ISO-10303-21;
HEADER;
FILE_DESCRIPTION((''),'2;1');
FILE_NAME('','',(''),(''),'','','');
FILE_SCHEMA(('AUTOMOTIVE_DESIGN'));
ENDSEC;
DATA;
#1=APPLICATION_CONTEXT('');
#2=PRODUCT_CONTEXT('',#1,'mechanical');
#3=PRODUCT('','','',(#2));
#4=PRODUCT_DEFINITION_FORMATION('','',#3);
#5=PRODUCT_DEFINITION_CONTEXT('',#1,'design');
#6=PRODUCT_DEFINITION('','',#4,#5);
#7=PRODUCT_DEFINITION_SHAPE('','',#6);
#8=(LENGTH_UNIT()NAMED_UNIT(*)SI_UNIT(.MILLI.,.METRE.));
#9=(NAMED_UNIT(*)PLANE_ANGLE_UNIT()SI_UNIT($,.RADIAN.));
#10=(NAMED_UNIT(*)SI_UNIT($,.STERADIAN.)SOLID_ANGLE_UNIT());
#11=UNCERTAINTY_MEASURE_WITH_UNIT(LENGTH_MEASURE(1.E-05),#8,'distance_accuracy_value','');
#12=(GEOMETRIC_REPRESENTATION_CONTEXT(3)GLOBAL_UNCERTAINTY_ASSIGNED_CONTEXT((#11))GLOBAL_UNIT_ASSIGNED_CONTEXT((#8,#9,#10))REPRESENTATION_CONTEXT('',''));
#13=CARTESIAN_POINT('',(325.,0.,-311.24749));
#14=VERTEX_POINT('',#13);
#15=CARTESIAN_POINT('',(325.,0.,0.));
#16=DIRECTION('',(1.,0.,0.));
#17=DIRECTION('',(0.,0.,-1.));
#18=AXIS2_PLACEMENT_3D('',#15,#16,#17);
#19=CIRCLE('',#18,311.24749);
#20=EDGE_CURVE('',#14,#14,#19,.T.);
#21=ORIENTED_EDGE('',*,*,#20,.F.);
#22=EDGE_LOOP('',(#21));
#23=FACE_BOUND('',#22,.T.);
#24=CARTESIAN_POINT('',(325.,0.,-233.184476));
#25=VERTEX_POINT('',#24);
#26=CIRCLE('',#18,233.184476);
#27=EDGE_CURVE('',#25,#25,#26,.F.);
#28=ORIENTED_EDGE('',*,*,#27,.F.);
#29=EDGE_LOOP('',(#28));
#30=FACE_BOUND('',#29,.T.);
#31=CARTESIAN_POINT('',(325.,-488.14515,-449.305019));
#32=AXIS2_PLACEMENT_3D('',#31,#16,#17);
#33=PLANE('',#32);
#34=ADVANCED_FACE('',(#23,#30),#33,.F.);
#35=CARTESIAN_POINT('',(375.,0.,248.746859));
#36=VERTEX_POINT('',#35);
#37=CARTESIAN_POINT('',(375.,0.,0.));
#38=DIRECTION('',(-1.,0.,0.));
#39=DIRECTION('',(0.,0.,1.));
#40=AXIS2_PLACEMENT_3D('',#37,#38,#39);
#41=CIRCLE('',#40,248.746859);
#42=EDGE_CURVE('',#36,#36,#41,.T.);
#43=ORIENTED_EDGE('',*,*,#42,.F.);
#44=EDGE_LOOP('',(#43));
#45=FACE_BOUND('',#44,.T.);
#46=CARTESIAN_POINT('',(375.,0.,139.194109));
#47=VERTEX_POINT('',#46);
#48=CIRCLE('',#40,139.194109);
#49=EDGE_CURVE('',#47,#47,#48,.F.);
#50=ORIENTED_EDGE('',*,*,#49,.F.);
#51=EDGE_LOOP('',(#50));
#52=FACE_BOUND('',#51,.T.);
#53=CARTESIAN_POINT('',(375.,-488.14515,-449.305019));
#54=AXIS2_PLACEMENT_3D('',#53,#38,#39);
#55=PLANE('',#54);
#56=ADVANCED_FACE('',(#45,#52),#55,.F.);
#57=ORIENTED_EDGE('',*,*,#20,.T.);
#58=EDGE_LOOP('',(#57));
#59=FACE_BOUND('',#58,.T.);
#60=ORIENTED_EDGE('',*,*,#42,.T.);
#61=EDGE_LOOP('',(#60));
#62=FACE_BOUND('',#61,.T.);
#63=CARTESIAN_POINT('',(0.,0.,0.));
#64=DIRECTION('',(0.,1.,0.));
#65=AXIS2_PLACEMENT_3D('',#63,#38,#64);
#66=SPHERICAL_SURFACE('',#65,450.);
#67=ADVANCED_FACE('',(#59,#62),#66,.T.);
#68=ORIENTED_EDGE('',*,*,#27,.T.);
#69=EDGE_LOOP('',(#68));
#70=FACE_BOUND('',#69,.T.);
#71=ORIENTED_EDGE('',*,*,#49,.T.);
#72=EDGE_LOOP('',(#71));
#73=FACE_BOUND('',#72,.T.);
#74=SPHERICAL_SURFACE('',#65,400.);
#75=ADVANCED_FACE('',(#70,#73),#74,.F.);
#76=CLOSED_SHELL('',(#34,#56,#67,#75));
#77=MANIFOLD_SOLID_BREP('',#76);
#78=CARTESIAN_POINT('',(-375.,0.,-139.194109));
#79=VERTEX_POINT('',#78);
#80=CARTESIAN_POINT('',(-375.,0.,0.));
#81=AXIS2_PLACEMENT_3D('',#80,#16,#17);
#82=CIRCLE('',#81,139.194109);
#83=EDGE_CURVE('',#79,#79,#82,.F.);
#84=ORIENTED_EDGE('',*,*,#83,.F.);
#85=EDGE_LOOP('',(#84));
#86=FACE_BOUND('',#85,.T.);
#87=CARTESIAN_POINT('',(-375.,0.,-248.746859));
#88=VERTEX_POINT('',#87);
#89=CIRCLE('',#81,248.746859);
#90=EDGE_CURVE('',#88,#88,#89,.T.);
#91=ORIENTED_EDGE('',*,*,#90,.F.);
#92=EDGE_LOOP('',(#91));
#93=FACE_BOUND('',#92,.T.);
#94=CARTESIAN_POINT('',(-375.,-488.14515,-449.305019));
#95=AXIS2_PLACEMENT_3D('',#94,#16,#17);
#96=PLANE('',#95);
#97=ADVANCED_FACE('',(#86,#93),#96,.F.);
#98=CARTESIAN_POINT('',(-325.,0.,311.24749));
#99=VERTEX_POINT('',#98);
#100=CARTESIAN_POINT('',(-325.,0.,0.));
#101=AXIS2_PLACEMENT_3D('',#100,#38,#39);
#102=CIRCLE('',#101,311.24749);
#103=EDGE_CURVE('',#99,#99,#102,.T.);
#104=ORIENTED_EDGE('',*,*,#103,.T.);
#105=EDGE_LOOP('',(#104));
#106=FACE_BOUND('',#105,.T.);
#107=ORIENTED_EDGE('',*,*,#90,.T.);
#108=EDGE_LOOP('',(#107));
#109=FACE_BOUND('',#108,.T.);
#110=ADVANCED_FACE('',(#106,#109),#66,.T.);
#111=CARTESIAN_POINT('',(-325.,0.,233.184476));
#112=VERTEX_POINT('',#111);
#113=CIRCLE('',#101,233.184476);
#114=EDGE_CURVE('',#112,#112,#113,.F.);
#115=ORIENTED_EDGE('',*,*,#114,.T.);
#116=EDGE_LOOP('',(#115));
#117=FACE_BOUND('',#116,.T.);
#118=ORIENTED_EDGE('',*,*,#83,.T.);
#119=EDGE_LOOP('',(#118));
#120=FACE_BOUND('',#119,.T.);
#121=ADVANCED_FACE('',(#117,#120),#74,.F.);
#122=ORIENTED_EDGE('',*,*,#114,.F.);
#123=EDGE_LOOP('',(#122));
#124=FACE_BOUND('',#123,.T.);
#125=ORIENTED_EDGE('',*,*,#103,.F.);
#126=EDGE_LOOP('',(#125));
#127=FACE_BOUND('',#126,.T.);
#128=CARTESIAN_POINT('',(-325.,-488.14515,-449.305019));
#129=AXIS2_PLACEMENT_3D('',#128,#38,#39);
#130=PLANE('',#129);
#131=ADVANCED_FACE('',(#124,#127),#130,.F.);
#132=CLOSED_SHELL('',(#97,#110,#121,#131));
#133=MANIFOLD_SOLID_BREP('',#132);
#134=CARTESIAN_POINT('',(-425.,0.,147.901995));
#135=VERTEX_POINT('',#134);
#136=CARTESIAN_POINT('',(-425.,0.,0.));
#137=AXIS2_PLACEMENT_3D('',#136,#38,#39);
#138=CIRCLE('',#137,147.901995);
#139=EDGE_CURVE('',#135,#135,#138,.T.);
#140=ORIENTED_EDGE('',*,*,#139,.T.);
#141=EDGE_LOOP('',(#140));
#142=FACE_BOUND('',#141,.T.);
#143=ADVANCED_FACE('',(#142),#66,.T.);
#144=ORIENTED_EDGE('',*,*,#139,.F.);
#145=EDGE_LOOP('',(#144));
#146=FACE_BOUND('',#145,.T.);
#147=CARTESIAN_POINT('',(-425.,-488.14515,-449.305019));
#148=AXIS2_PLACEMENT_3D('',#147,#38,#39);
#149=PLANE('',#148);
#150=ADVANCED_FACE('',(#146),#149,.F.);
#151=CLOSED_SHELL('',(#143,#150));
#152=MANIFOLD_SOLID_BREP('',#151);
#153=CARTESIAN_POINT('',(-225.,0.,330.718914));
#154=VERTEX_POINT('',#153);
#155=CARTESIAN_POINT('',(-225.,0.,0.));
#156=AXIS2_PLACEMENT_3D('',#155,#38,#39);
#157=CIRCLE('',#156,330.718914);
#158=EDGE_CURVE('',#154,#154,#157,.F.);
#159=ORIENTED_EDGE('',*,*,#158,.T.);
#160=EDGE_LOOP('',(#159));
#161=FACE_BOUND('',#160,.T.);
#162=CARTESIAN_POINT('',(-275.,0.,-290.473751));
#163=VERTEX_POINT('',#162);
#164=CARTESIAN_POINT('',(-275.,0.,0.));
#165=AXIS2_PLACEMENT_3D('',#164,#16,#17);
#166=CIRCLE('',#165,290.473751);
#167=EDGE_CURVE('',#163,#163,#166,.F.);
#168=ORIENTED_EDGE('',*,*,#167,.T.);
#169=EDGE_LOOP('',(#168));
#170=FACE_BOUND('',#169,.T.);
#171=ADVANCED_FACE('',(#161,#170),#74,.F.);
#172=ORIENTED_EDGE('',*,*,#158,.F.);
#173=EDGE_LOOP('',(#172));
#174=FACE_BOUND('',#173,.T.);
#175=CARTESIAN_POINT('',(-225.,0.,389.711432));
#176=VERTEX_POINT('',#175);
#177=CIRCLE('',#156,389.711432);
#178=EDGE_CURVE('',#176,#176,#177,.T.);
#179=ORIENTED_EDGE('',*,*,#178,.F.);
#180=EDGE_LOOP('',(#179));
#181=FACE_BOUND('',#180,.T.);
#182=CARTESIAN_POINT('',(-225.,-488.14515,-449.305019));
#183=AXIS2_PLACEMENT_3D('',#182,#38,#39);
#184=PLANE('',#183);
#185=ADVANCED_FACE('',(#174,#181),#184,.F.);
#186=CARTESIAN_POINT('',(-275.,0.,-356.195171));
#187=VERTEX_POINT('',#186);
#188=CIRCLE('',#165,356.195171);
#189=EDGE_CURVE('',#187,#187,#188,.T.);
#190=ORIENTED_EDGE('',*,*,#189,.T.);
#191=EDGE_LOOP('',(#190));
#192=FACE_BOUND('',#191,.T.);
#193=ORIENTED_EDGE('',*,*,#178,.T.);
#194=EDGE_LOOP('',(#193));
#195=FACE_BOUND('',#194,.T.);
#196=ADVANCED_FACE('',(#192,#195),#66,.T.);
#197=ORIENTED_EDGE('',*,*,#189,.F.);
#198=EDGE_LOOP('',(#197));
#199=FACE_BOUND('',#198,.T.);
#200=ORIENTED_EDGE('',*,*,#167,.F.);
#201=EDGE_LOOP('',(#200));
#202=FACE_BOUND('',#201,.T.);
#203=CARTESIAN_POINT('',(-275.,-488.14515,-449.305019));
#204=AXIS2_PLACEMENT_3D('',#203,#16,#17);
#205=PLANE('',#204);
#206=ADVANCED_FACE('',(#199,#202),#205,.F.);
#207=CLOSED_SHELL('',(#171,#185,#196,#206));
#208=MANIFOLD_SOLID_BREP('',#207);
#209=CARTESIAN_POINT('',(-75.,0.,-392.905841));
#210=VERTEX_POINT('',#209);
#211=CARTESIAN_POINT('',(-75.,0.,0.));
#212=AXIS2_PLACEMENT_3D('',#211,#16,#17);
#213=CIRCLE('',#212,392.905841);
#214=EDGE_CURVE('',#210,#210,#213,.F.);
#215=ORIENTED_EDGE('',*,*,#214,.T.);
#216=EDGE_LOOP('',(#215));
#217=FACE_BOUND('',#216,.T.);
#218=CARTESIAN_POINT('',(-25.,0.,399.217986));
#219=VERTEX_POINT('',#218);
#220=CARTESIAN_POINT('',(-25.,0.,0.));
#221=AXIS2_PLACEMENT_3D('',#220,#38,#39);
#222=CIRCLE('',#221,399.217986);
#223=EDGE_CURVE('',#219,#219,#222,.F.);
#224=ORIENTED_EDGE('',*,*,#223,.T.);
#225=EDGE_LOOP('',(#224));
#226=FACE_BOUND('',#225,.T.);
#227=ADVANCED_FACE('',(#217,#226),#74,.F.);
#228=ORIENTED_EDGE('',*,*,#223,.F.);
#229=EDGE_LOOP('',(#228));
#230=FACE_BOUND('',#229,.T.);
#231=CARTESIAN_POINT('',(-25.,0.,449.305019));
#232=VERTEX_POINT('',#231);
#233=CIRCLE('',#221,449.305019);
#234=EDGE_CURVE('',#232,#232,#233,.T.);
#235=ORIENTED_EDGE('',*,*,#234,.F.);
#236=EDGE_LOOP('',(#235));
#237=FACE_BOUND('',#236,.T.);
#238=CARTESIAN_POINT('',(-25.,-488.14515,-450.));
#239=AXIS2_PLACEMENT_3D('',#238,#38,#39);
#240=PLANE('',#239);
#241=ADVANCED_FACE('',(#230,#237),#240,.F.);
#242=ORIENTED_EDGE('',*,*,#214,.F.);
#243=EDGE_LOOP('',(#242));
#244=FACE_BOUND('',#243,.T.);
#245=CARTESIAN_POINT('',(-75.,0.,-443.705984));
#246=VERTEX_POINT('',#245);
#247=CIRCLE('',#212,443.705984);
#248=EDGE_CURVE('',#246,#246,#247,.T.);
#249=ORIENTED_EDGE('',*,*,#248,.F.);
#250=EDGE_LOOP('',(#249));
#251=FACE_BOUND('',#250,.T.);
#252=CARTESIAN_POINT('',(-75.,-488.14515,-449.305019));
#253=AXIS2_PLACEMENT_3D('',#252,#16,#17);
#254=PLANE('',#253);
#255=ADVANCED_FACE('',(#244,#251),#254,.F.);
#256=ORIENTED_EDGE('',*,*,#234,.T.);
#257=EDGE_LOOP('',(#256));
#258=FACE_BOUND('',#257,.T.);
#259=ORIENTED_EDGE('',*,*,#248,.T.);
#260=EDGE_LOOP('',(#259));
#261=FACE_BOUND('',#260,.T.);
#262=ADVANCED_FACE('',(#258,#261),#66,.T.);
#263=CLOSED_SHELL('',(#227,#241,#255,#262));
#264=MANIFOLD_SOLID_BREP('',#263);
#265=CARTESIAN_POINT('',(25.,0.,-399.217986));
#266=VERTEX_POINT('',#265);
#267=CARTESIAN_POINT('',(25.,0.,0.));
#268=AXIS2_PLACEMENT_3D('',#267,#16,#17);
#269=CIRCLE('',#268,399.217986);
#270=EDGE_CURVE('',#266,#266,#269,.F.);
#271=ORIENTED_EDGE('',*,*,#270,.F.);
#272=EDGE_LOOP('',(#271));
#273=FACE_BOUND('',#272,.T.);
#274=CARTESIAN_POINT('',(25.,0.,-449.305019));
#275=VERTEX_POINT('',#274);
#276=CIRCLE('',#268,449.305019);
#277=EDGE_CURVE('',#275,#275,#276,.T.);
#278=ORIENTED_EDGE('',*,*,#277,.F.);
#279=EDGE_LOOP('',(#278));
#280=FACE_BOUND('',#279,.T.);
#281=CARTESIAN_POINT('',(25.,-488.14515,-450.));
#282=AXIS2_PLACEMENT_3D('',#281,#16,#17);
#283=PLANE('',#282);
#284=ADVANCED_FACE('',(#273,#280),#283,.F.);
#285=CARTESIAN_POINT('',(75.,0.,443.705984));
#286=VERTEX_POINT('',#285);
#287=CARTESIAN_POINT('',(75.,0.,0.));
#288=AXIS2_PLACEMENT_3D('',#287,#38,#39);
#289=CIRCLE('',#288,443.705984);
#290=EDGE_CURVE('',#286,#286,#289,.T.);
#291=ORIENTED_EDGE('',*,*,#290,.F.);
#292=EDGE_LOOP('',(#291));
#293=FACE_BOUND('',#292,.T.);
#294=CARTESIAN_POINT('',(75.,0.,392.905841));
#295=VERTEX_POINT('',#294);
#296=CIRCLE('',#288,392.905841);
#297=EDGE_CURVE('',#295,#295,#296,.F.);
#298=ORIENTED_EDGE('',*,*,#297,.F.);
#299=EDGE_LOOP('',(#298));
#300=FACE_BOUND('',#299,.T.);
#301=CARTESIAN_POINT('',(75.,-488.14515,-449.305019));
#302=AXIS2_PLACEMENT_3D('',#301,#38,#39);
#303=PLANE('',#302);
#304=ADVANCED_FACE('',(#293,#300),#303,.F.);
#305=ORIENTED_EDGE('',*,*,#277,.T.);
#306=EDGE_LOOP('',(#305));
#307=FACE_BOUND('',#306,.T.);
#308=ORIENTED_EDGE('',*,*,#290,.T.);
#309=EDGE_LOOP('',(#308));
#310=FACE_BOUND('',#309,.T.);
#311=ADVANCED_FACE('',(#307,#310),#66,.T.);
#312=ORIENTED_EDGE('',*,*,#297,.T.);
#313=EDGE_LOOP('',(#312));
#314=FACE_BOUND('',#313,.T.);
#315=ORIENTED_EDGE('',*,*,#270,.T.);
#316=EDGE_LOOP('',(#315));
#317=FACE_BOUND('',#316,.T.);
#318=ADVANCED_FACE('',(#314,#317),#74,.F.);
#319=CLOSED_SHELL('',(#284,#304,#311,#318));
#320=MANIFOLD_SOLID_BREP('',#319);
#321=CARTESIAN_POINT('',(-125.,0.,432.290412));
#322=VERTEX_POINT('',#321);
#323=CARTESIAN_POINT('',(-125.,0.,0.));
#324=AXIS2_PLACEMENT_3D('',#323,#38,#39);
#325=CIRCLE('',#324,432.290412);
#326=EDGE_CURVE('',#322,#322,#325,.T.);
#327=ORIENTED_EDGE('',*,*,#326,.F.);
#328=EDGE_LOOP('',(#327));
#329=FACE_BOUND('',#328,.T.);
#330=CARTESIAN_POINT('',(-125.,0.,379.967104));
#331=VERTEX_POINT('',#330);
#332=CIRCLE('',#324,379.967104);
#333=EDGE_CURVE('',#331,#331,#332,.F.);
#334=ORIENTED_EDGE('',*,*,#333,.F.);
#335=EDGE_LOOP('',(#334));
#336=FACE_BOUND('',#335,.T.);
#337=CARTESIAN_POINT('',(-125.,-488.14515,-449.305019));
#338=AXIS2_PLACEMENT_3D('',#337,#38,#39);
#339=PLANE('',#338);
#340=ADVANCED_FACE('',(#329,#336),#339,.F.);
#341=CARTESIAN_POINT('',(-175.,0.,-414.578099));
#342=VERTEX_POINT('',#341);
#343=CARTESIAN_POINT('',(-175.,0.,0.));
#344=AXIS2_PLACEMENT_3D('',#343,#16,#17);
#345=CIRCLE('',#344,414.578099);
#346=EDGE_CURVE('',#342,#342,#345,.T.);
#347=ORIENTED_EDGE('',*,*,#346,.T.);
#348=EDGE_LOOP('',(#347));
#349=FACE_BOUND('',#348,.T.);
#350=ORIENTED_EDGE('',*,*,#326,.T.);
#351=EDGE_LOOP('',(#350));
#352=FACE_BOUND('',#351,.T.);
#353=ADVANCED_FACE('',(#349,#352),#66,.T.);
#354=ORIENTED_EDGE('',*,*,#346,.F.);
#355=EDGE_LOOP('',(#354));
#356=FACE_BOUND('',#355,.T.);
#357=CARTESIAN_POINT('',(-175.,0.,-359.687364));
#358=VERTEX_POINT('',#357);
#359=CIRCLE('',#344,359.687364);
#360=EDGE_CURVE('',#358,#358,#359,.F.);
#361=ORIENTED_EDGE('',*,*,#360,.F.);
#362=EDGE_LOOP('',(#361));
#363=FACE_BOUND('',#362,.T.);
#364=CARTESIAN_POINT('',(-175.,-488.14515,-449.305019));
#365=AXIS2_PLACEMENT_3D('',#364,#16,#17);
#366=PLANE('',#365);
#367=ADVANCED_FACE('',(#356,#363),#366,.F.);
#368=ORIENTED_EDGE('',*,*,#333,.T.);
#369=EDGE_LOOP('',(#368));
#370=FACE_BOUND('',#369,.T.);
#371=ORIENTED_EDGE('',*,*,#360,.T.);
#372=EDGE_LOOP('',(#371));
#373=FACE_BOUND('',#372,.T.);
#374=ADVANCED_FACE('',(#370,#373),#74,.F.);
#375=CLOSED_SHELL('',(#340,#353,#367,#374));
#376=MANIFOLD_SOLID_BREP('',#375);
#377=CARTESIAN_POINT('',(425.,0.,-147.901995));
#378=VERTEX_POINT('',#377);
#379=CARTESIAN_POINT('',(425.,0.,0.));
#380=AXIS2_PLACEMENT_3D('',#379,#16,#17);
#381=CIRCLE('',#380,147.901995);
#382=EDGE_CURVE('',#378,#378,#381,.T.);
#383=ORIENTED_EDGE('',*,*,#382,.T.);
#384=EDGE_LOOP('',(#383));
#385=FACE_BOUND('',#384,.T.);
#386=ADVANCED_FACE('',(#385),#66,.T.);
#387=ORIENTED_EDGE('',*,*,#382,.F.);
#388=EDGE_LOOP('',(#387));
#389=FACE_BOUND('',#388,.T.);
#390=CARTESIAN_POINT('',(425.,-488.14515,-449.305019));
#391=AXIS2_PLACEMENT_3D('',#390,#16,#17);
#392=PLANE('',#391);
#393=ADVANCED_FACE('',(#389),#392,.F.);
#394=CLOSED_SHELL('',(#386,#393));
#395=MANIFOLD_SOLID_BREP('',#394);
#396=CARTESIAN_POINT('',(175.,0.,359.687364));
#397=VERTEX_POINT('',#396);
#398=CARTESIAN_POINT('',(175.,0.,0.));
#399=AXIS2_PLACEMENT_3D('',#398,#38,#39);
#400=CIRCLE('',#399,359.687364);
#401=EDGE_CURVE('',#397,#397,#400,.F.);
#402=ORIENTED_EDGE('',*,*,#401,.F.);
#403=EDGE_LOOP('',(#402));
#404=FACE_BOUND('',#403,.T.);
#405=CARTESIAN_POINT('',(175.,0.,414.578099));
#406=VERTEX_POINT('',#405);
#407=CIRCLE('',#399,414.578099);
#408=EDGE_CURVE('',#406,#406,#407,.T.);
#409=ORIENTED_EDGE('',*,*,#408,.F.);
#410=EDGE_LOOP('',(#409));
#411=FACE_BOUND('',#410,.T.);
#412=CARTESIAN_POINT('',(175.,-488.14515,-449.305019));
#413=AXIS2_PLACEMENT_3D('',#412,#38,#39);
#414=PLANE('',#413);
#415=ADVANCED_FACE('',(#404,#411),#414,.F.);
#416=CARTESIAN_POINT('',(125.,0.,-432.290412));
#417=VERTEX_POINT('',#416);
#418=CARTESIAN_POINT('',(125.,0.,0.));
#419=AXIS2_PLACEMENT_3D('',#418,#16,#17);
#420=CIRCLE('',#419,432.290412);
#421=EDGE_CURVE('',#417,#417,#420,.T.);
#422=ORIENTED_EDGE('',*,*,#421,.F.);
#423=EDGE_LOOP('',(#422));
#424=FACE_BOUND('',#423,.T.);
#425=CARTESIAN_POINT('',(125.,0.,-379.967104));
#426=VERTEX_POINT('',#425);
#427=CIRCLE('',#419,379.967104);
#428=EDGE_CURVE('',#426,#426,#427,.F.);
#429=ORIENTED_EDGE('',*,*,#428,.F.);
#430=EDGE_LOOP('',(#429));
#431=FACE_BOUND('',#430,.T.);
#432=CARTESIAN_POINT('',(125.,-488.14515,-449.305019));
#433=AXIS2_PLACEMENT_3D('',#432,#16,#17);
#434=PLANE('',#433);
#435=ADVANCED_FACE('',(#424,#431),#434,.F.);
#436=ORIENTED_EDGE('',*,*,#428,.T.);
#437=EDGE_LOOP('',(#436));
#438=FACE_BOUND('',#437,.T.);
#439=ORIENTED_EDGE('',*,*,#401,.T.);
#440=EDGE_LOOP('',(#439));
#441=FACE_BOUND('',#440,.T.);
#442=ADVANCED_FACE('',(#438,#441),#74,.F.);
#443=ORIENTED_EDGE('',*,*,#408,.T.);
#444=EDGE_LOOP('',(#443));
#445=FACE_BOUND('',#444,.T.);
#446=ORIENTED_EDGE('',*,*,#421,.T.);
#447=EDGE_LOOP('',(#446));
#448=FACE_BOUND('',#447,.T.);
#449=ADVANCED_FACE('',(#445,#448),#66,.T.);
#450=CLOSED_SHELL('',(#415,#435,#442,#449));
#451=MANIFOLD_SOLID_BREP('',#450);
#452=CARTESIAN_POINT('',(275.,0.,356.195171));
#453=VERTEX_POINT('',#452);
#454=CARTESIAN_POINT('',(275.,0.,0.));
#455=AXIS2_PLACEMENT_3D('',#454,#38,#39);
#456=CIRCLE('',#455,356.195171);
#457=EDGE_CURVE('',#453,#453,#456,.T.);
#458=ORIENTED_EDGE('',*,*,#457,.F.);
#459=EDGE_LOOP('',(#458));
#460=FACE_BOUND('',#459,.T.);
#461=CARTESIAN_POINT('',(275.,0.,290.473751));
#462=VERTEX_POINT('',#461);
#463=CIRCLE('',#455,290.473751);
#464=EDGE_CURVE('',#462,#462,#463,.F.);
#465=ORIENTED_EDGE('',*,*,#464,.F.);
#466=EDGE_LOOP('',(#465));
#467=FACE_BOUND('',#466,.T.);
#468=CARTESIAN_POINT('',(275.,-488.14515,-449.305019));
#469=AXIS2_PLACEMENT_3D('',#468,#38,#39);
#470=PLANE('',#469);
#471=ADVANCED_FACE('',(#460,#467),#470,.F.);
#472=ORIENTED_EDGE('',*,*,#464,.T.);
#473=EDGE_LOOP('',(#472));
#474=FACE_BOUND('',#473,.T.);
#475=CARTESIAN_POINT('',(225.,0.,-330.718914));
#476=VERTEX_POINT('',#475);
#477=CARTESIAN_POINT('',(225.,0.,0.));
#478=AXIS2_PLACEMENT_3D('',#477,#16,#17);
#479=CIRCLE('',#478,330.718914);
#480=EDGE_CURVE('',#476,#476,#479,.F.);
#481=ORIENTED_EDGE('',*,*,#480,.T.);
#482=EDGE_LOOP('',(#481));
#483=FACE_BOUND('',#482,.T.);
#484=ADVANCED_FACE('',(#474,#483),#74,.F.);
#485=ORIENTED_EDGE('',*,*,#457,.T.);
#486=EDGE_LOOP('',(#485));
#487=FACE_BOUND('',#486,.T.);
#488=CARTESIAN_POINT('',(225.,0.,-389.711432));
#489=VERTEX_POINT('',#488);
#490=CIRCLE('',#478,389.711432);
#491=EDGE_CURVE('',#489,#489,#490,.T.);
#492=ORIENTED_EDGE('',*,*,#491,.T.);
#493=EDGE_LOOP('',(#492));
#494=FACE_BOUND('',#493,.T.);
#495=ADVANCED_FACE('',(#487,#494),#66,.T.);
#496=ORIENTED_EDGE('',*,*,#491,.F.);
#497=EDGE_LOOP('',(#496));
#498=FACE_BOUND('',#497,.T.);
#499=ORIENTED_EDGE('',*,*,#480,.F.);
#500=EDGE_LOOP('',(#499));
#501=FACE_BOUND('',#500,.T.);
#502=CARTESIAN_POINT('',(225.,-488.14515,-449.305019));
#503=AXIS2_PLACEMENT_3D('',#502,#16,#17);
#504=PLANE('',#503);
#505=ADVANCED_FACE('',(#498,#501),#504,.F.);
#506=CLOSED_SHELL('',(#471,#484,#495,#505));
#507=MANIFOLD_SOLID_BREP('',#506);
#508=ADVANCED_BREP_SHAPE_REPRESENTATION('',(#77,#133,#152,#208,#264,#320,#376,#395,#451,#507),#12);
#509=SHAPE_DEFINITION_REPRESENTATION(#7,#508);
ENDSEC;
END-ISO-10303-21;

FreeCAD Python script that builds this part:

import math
import FreeCAD as App
import Part
import Sketcher

V = App.Vector
Q = App.Units.Quantity

doc = App.newDocument("Part")
body = doc.addObject("PartDesign::Body", "Body")
body.AllowCompound = True

# Sketch on XY plane
sketch1 = doc.addObject("Sketcher::SketchObject", "Sketch")
body.addObject(sketch1)
sketch1.AttachmentSupport = (doc.XY_Plane, [""])
sketch1.MapMode = "FlatFace"
sketch1.addGeometry(Part.LineSegment(V(-450, 0, 0), V(-400, 0, 0)), False)
sketch1.addGeometry(Part.ArcOfCircle(Part.Circle(V(0, 0, 0), V(0, 0, 1), 400), math.radians(0), math.radians(180)), False)
sketch1.addGeometry(Part.LineSegment(V(400, 0, 0), V(450, 0, 0)), False)
sketch1.addGeometry(Part.ArcOfCircle(Part.Circle(V(0, 0, 0), V(0, 0, 1), 450), math.radians(0), math.radians(180)), False)
sketch1.addConstraint(Sketcher.Constraint("Coincident", 0, 2, 1, 2))
sketch1.addConstraint(Sketcher.Constraint("Coincident", 1, 1, 2, 1))
sketch1.addConstraint(Sketcher.Constraint("Coincident", 2, 2, 3, 1))
sketch1.addConstraint(Sketcher.Constraint("Coincident", 3, 2, 0, 1))
sketch1.addConstraint(Sketcher.Constraint("Horizontal", 0))
sketch1.addConstraint(Sketcher.Constraint("Horizontal", 2))
sketch1.addConstraint(Sketcher.Constraint("Coincident", 1, 3, -1, 1))
sketch1.addConstraint(Sketcher.Constraint("Coincident", 3, 3, -1, 1))
sketch1.addConstraint(Sketcher.Constraint("PointOnObject", 0, 2, -1))
sketch1.addConstraint(Sketcher.Constraint("PointOnObject", 2, 2, -1))
sketch1.addConstraint(Sketcher.Constraint("Radius", 1, Q("400 mm")))
sketch1.addConstraint(Sketcher.Constraint("Radius", 3, Q("450 mm")))
revolution = doc.addObject("PartDesign::Revolution", "Revolution")
body.addObject(revolution)
revolution.Profile = sketch1
revolution.ReferenceAxis = (sketch1, ["H_Axis"])
revolution.Angle = 360

# Sketch on XY plane
sketch2 = doc.addObject("Sketcher::SketchObject", "Sketch001")
body.addObject(sketch2)
sketch2.AttachmentSupport = (doc.XY_Plane, [""])
sketch2.MapMode = "FlatFace"
sketch2.addGeometry(Part.LineSegment(V(-25, 488, 0), V(-25, -488, 0)), False)
sketch2.addGeometry(Part.LineSegment(V(-25, -488, 0), V(25, -488, 0)), False)
sketch2.addGeometry(Part.LineSegment(V(25, -488, 0), V(25, 488, 0)), False)
sketch2.addGeometry(Part.LineSegment(V(25, 488, 0), V(-25, 488, 0)), False)
sketch2.addConstraint(Sketcher.Constraint("Coincident", 0, 2, 1, 1))
sketch2.addConstraint(Sketcher.Constraint("Coincident", 1, 2, 2, 1))
sketch2.addConstraint(Sketcher.Constraint("Coincident", 2, 2, 3, 1))
sketch2.addConstraint(Sketcher.Constraint("Coincident", 3, 2, 0, 1))
sketch2.addConstraint(Sketcher.Constraint("Vertical", 0))
sketch2.addConstraint(Sketcher.Constraint("Horizontal", 1))
sketch2.addConstraint(Sketcher.Constraint("Vertical", 2))
sketch2.addConstraint(Sketcher.Constraint("Horizontal", 3))
sketch2.addConstraint(Sketcher.Constraint("Symmetric", 0, 2, 2, 2, -1, 1))
sketch2.addConstraint(Sketcher.Constraint("DistanceX", 1, 1, 1, 2, Q("50 mm")))
sketch2.addConstraint(Sketcher.Constraint("DistanceY", 0, 2, 0, 1, Q("976.290301 mm")))
pocket1 = doc.addObject("PartDesign::Pocket", "Pocket")
body.addObject(pocket1)
pocket1.Profile = sketch2
pocket1.Length = 902
pocket1.Midplane = True
doc.recompute()

linearpattern = doc.addObject("PartDesign::LinearPattern", "LinearPattern")
body.addObject(linearpattern)
linearpattern.Originals = [pocket1]
linearpattern.Direction = (doc.X_Axis, [""])
linearpattern.Mode = "offset"
linearpattern.Offset = 100
linearpattern.Occurrences = 5
linearpattern.Reversed = True
body.Tip = linearpattern
doc.recompute()

linearpattern2 = doc.addObject("PartDesign::LinearPattern", "LinearPattern001")
body.addObject(linearpattern2)
linearpattern2.Originals = [pocket1]
linearpattern2.Direction = (doc.X_Axis, [""])
linearpattern2.Mode = "offset"
linearpattern2.Offset = 100
linearpattern2.Occurrences = 5
body.Tip = linearpattern2

doc.recompute()
